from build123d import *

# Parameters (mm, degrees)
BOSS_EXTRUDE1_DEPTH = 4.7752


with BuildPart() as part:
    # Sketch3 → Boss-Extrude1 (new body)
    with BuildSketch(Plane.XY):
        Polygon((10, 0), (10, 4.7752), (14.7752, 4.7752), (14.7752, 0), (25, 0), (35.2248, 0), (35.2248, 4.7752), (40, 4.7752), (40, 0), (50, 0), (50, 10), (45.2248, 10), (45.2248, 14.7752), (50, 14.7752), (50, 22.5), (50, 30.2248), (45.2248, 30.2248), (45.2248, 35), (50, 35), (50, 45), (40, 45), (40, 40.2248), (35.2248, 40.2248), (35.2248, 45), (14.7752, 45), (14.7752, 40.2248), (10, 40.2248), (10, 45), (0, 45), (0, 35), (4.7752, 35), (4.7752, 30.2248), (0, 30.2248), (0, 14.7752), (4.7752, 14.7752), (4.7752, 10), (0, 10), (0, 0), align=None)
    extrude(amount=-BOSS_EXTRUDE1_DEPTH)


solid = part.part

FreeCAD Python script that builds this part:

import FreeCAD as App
import Part
import Sketcher


def add_polygon(sketch, points):
    """Adds a closed chain of lines whose ends are joined by coincident constraints."""
    first, n = sketch.GeometryCount, len(points)
    for a, b in zip(points, points[1:] + points[:1]):
        sketch.addGeometry(Part.LineSegment(App.Vector(*a, 0), App.Vector(*b, 0)), False)
    for i in range(n):
        sketch.addConstraint(Sketcher.Constraint("Coincident", first + i, 2, first + (i + 1) % n, 1))

doc = App.newDocument("Part")
body = doc.addObject("PartDesign::Body", "Body")

# Sketch on XY plane
sketch1 = body.newObject("Sketcher::SketchObject", "Sketch")
sketch1.AttachmentSupport = (doc.getObject("XY_Plane"), [""])
sketch1.MapMode = "FlatFace"
add_polygon(sketch1, [(10, 0), (10, 4.7752), (14.7752, 4.7752), (14.7752, 0), (35.2248, 0), (35.2248, 4.7752), (40, 4.7752), (40, 0), (50, 0), (50, 10), (45.2248, 10), (45.2248, 14.7752), (50, 14.7752), (50, 30.2248), (45.2248, 30.2248), (45.2248, 35), (50, 35), (50, 45), (40, 45), (40, 40.2248), (35.2248, 40.2248), (35.2248, 45), (14.7752, 45), (14.7752, 40.2248), (10, 40.2248), (10, 45), (0, 45), (0, 35), (4.7752, 35), (4.7752, 30.2248), (0, 30.2248), (0, 14.7752), (4.7752, 14.7752), (4.7752, 10), (0, 10), (0, 0)])  # lines 0-35
sketch1.addConstraint(Sketcher.Constraint("Vertical", 0))
sketch1.addConstraint(Sketcher.Constraint("Horizontal", 1))
sketch1.addConstraint(Sketcher.Constraint("Vertical", 2))
sketch1.addConstraint(Sketcher.Constraint("Horizontal", 3))
sketch1.addConstraint(Sketcher.Constraint("Vertical", 4))
sketch1.addConstraint(Sketcher.Constraint("Horizontal", 5))
sketch1.addConstraint(Sketcher.Constraint("Vertical", 6))
sketch1.addConstraint(Sketcher.Constraint("Horizontal", 7))
sketch1.addConstraint(Sketcher.Constraint("Vertical", 8))
sketch1.addConstraint(Sketcher.Constraint("Horizontal", 9))
sketch1.addConstraint(Sketcher.Constraint("Vertical", 10))
sketch1.addConstraint(Sketcher.Constraint("Horizontal", 11))
sketch1.addConstraint(Sketcher.Constraint("Vertical", 12))
sketch1.addConstraint(Sketcher.Constraint("Horizontal", 13))
sketch1.addConstraint(Sketcher.Constraint("Vertical", 14))
sketch1.addConstraint(Sketcher.Constraint("Horizontal", 15))
sketch1.addConstraint(Sketcher.Constraint("Vertical", 16))
sketch1.addConstraint(Sketcher.Constraint("Horizontal", 17))
sketch1.addConstraint(Sketcher.Constraint("Vertical", 18))
sketch1.addConstraint(Sketcher.Constraint("Horizontal", 19))
sketch1.addConstraint(Sketcher.Constraint("Vertical", 20))
sketch1.addConstraint(Sketcher.Constraint("Horizontal", 21))
sketch1.addConstraint(Sketcher.Constraint("Vertical", 22))
sketch1.addConstraint(Sketcher.Constraint("Horizontal", 23))
sketch1.addConstraint(Sketcher.Constraint("Vertical", 24))
sketch1.addConstraint(Sketcher.Constraint("Horizontal", 25))
sketch1.addConstraint(Sketcher.Constraint("Vertical", 26))
sketch1.addConstraint(Sketcher.Constraint("Horizontal", 27))
sketch1.addConstraint(Sketcher.Constraint("Vertical", 28))
sketch1.addConstraint(Sketcher.Constraint("Horizontal", 29))
sketch1.addConstraint(Sketcher.Constraint("Vertical", 30))
sketch1.addConstraint(Sketcher.Constraint("Horizontal", 31))
sketch1.addConstraint(Sketcher.Constraint("Vertical", 32))
sketch1.addConstraint(Sketcher.Constraint("Horizontal", 33))
sketch1.addConstraint(Sketcher.Constraint("Vertical", 34))
sketch1.addConstraint(Sketcher.Constraint("Horizontal", 35))
sketch1.addConstraint(Sketcher.Constraint("Coincident", 34, 2, -1, 1))
sketch1.addConstraint(Sketcher.Constraint("PointOnObject", 2, 2, -1))
sketch1.addConstraint(Sketcher.Constraint("PointOnObject", 6, 2, -1))
sketch1.addConstraint(Sketcher.Constraint("PointOnObject", 25, 2, -2))
sketch1.addConstraint(Sketcher.Constraint("PointOnObject", 29, 2, -2))
sketch1.addConstraint(Sketcher.Constraint("Horizontal", 1, 2, 4, 2))
sketch1.addConstraint(Sketcher.Constraint("Horizontal", 17, 2, 20, 2))
sketch1.addConstraint(Sketcher.Constraint("Horizontal", 19, 2, 22, 2))
sketch1.addConstraint(Sketcher.Constraint("Horizontal", 21, 2, 24, 2))
sketch1.addConstraint(Sketcher.Constraint("Horizontal", 15, 2, 26, 2))
sketch1.addConstraint(Sketcher.Constraint("Horizontal", 13, 2, 28, 2))
sketch1.addConstraint(Sketcher.Constraint("Horizontal", 11, 2, 30, 2))
sketch1.addConstraint(Sketcher.Constraint("Horizontal", 9, 2, 32, 2))
sketch1.addConstraint(Sketcher.Constraint("Vertical", 8, 2, 11, 2))
sketch1.addConstraint(Sketcher.Constraint("Vertical", 10, 2, 13, 2))
sketch1.addConstraint(Sketcher.Constraint("Vertical", 12, 2, 15, 2))
sketch1.addConstraint(Sketcher.Constraint("Vertical", 6, 2, 17, 2))
sketch1.addConstraint(Sketcher.Constraint("Vertical", 4, 2, 19, 2))
sketch1.addConstraint(Sketcher.Constraint("Vertical", 2, 2, 21, 2))
sketch1.addConstraint(Sketcher.Constraint("Vertical", 0, 2, 23, 2))
sketch1.addConstraint(Sketcher.Constraint("Vertical", 28, 2, 31, 2))
sketch1.addConstraint(Sketcher.Constraint("Equal", 1, 5))
sketch1.addConstraint(Sketcher.Constraint("Equal", 5, 9))
sketch1.addConstraint(Sketcher.Constraint("Equal", 17, 25))
sketch1.addConstraint(Sketcher.Constraint("Equal", 23, 27))
sketch1.addConstraint(Sketcher.Constraint("Equal", 33, 0))
sketch1.addConstraint(Sketcher.Constraint("Equal", 35, 8))
sketch1.addConstraint(Sketcher.Constraint("Equal", 6, 10))
sketch1.addConstraint(Sketcher.Constraint("Equal", 10, 14))
sketch1.addConstraint(Sketcher.Constraint("Equal", 8, 16))
sketch1.addConstraint(Sketcher.Constraint("Equal", 14, 18))
sketch1.addConstraint(Sketcher.Constraint("DistanceX", 7, 1, 7, 2, 10.0))
sketch1.addConstraint(Sketcher.Constraint("DistanceX", -1, 1, 5, 2, 40.0))
sketch1.addConstraint(Sketcher.Constraint("DistanceY", -1, 1, 14, 2, 35.0))
sketch1.addConstraint(Sketcher.Constraint("DistanceX", 1, 1, 1, 2, 4.7752))
pad1 = body.newObject("PartDesign::Pad", "Pad")
pad1.Profile = sketch1
pad1.Length = 4.7752
pad1.Reversed = True

doc.recompute()
